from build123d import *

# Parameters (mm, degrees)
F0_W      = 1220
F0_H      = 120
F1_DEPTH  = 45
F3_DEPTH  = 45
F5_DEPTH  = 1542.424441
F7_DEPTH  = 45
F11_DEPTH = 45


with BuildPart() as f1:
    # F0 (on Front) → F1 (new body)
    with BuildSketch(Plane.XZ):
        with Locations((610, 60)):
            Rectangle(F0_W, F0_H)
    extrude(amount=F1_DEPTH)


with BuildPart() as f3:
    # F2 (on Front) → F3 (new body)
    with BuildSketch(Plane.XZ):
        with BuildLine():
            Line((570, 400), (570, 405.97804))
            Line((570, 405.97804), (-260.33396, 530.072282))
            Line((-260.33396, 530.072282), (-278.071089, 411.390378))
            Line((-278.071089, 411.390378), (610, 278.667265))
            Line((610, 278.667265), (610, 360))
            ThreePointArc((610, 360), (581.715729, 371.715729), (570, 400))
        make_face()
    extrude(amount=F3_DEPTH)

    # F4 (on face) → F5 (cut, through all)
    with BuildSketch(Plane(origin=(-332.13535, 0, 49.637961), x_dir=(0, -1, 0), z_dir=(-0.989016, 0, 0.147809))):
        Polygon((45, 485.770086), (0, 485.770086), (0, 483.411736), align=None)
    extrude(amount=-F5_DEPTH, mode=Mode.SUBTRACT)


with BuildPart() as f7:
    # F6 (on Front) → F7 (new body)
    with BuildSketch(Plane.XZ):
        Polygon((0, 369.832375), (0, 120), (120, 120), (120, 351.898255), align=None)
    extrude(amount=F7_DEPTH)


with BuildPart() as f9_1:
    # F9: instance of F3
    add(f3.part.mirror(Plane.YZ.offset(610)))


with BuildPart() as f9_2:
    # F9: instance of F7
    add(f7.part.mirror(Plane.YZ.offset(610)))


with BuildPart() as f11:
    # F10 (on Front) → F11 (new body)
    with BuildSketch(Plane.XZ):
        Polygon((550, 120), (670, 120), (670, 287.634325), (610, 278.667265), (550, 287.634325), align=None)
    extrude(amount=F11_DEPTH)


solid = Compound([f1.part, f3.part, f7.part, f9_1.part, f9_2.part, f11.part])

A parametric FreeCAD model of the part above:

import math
import FreeCAD as App
import Part
import Sketcher

V = App.Vector
Q = App.Units.Quantity


def add_polygon(sketch, points):
    """Adds a closed chain of lines whose ends are joined by coincident constraints."""
    first, n = sketch.GeometryCount, len(points)
    for a, b in zip(points, points[1:] + points[:1]):
        sketch.addGeometry(Part.LineSegment(App.Vector(*a, 0), App.Vector(*b, 0)), False)
    for i in range(n):
        sketch.addConstraint(Sketcher.Constraint("Coincident", first + i, 2, first + (i + 1) % n, 1))

doc = App.newDocument("Part")
body = doc.addObject("PartDesign::Body", "Body")

# Sketch on XZ plane
sketch1 = body.newObject("Sketcher::SketchObject", "Sketch")
sketch1.AttachmentSupport = (doc.getObject("XZ_Plane"), [""])
sketch1.MapMode = "FlatFace"
add_polygon(sketch1, [(0, 120), (0, 0), (1220, 0), (1220, 120)])  # lines 0-3
sketch1.addConstraint([
    Sketcher.Constraint("Vertical", 0),
    Sketcher.Constraint("Horizontal", 1),
    Sketcher.Constraint("Vertical", 2),
    Sketcher.Constraint("Horizontal", 3),
    Sketcher.Constraint("Coincident", 0, 2, -1, 1),
    Sketcher.Constraint("DistanceX", 1, 1, 1, 2, Q("1220 mm")),
    Sketcher.Constraint("DistanceY", 0, 2, 0, 1, Q("120 mm")),
])
pad1 = body.newObject("PartDesign::Pad", "Pad")
pad1.Profile = sketch1
pad1.Length = 45
body2 = doc.addObject("PartDesign::Body", "Body001")

# Sketch on XZ plane
sketch2 = body2.newObject("Sketcher::SketchObject", "Sketch001")
sketch2.AttachmentSupport = (doc.getObject("XZ_Plane001"), [""])
sketch2.MapMode = "FlatFace"
sketch2.addGeometry([
    Part.LineSegment(V(570, 400, 0), V(570, 406, 0)),  # 0
    Part.LineSegment(V(570, 406, 0), V(-260, 530, 0)),  # 1
    Part.LineSegment(V(-260, 530, 0), V(-278, 411, 0)),  # 2
    Part.LineSegment(V(-278, 411, 0), V(610, 279, 0)),  # 3
    Part.LineSegment(V(610, 279, 0), V(610, 360, 0)),  # 4
    Part.ArcOfCircle(Part.Circle(V(610, 400, 0), V(0, 0, 1), 40), math.radians(-180), math.radians(-90)),  # 5
], False)
sketch2.addConstraint([
    Sketcher.Constraint("Coincident", 0, 2, 1, 1),
    Sketcher.Constraint("Coincident", 1, 2, 2, 1),
    Sketcher.Constraint("Coincident", 2, 2, 3, 1),
    Sketcher.Constraint("Coincident", 3, 2, 4, 1),
    Sketcher.Constraint("Coincident", 4, 2, 5, 2),
    Sketcher.Constraint("Tangent", 5, 1, 0, 1),
    Sketcher.Constraint("Vertical", 0),
    Sketcher.Constraint("Vertical", 4),
    Sketcher.Constraint("Perpendicular", 1, 2),
    Sketcher.Constraint("Perpendicular", 2, 3),
    Sketcher.Constraint("Vertical", 5, 3, 3, 2),
    Sketcher.Constraint("Radius", 5, Q("40.000001 mm")),
    Sketcher.Constraint("Distance", 2, Q("120 mm")),
    Sketcher.Constraint("DistanceX", -1, 1, 5, 3, Q("610.000001 mm")),
    Sketcher.Constraint("DistanceY", -1, 1, 5, 3, Q("400.000001 mm")),
    Sketcher.Constraint("Angle", 1, Q("171.5 deg")),
    Sketcher.Constraint("DistanceY", 0, 1, 0, 2, Q("5.97804 mm")),
    Sketcher.Constraint("Distance", 3, Q("897.93412 mm")),
])
pad2 = body2.newObject("PartDesign::Pad", "Pad001")
pad2.Profile = sketch2
pad2.Length = 45

# Sketch on an angled plane
sketch3 = body2.newObject("Sketcher::SketchObject", "Sketch002")
sketch3.Placement = App.Placement(V(-332.13535, 0, 49.637961), App.Rotation(V(0, -1, 0), V(0.147808989, 0, 0.989015926), V(-0.989015926, 0, 0.147808989), "ZXY"))
add_polygon(sketch3, [(45, 485.8), (0, 485.8), (0, 483.4)])  # lines 0-2
sketch3.addConstraint([
    Sketcher.Constraint("Horizontal", 0),
    Sketcher.Constraint("Vertical", 1),
    Sketcher.Constraint("PointOnObject", 0, 2, -2),
    Sketcher.Constraint("DistanceX", 0, 2, 0, 1, Q("45 mm")),
    Sketcher.Constraint("Angle", 2, Q("3 deg")),
    Sketcher.Constraint("DistanceY", -1, 1, 0, 2, Q("485.770086 mm")),
])
pocket1 = body2.newObject("PartDesign::Pocket", "Pocket")
pocket1.Profile = sketch3
pocket1.Type = "ThroughAll"
body3 = doc.addObject("PartDesign::Body", "Body002")

# Sketch on XZ plane
sketch4 = body3.newObject("Sketcher::SketchObject", "Sketch003")
sketch4.AttachmentSupport = (doc.getObject("XZ_Plane002"), [""])
sketch4.MapMode = "FlatFace"
add_polygon(sketch4, [(0, 370), (0, 120), (120, 120), (120, 352)])  # lines 0-3
sketch4.addConstraint([
    Sketcher.Constraint("Vertical", 0),
    Sketcher.Constraint("Horizontal", 1),
    Sketcher.Constraint("Vertical", 2),
    Sketcher.Constraint("PointOnObject", 0, 2, -2),
    Sketcher.Constraint("DistanceX", 1, 1, 1, 2, Q("120 mm")),
    Sketcher.Constraint("DistanceY", -1, 1, 0, 2, Q("120 mm")),
    Sketcher.Constraint("Angle", 3, Q("171.5 deg")),
    Sketcher.Constraint("DistanceY", 0, 2, 0, 1, Q("249.832375 mm")),
])
pad3 = body3.newObject("PartDesign::Pad", "Pad002")
pad3.Profile = sketch4
pad3.Length = 45
body4 = doc.addObject("PartDesign::Body", "Body003")
doc.recompute()

mirroring = doc.addObject("Part::Mirroring", "Mirroring")
mirroring.Source = body2
mirroring.Base = V(610, 0, 0)
mirroring.Normal = V(1, 0, 0)
body4.BaseFeature = mirroring
doc.recompute()
body5 = doc.addObject("PartDesign::Body", "Body004")
doc.recompute()

mirroring2 = doc.addObject("Part::Mirroring", "Mirroring001")
mirroring2.Source = body3
mirroring2.Base = V(610, 0, 0)
mirroring2.Normal = V(1, 0, 0)
body5.BaseFeature = mirroring2
doc.recompute()
body6 = doc.addObject("PartDesign::Body", "Body005")

# Sketch on XZ plane
sketch5 = body6.newObject("Sketcher::SketchObject", "Sketch004")
sketch5.AttachmentSupport = (doc.getObject("XZ_Plane005"), [""])
sketch5.MapMode = "FlatFace"
add_polygon(sketch5, [(550, 120), (670, 120), (670, 288), (610, 279), (550, 288)])  # lines 0-4
sketch5.addConstraint([
    Sketcher.Constraint("Horizontal", 0),
    Sketcher.Constraint("Vertical", 1),
    Sketcher.Constraint("Vertical", 4),
    Sketcher.Constraint("Horizontal", 1, 2, 3, 2),
    Sketcher.Constraint("Equal", 2, 3),
    Sketcher.Constraint("DistanceX", 0, 1, 0, 2, Q("120 mm")),
    Sketcher.Constraint("DistanceX", -1, 1, 0, 2, Q("670 mm")),
    Sketcher.Constraint("DistanceY", -1, 1, 0, 2, Q("120 mm")),
    Sketcher.Constraint("Angle", 2, Q("-171.5 deg")),
    Sketcher.Constraint("DistanceY", 1, 1, 1, 2, Q("167.634325 mm")),
])
pad4 = body6.newObject("PartDesign::Pad", "Pad003")
pad4.Profile = sketch5
pad4.Length = 45
mirroring.Visibility = False
mirroring2.Visibility = False

doc.recompute()
